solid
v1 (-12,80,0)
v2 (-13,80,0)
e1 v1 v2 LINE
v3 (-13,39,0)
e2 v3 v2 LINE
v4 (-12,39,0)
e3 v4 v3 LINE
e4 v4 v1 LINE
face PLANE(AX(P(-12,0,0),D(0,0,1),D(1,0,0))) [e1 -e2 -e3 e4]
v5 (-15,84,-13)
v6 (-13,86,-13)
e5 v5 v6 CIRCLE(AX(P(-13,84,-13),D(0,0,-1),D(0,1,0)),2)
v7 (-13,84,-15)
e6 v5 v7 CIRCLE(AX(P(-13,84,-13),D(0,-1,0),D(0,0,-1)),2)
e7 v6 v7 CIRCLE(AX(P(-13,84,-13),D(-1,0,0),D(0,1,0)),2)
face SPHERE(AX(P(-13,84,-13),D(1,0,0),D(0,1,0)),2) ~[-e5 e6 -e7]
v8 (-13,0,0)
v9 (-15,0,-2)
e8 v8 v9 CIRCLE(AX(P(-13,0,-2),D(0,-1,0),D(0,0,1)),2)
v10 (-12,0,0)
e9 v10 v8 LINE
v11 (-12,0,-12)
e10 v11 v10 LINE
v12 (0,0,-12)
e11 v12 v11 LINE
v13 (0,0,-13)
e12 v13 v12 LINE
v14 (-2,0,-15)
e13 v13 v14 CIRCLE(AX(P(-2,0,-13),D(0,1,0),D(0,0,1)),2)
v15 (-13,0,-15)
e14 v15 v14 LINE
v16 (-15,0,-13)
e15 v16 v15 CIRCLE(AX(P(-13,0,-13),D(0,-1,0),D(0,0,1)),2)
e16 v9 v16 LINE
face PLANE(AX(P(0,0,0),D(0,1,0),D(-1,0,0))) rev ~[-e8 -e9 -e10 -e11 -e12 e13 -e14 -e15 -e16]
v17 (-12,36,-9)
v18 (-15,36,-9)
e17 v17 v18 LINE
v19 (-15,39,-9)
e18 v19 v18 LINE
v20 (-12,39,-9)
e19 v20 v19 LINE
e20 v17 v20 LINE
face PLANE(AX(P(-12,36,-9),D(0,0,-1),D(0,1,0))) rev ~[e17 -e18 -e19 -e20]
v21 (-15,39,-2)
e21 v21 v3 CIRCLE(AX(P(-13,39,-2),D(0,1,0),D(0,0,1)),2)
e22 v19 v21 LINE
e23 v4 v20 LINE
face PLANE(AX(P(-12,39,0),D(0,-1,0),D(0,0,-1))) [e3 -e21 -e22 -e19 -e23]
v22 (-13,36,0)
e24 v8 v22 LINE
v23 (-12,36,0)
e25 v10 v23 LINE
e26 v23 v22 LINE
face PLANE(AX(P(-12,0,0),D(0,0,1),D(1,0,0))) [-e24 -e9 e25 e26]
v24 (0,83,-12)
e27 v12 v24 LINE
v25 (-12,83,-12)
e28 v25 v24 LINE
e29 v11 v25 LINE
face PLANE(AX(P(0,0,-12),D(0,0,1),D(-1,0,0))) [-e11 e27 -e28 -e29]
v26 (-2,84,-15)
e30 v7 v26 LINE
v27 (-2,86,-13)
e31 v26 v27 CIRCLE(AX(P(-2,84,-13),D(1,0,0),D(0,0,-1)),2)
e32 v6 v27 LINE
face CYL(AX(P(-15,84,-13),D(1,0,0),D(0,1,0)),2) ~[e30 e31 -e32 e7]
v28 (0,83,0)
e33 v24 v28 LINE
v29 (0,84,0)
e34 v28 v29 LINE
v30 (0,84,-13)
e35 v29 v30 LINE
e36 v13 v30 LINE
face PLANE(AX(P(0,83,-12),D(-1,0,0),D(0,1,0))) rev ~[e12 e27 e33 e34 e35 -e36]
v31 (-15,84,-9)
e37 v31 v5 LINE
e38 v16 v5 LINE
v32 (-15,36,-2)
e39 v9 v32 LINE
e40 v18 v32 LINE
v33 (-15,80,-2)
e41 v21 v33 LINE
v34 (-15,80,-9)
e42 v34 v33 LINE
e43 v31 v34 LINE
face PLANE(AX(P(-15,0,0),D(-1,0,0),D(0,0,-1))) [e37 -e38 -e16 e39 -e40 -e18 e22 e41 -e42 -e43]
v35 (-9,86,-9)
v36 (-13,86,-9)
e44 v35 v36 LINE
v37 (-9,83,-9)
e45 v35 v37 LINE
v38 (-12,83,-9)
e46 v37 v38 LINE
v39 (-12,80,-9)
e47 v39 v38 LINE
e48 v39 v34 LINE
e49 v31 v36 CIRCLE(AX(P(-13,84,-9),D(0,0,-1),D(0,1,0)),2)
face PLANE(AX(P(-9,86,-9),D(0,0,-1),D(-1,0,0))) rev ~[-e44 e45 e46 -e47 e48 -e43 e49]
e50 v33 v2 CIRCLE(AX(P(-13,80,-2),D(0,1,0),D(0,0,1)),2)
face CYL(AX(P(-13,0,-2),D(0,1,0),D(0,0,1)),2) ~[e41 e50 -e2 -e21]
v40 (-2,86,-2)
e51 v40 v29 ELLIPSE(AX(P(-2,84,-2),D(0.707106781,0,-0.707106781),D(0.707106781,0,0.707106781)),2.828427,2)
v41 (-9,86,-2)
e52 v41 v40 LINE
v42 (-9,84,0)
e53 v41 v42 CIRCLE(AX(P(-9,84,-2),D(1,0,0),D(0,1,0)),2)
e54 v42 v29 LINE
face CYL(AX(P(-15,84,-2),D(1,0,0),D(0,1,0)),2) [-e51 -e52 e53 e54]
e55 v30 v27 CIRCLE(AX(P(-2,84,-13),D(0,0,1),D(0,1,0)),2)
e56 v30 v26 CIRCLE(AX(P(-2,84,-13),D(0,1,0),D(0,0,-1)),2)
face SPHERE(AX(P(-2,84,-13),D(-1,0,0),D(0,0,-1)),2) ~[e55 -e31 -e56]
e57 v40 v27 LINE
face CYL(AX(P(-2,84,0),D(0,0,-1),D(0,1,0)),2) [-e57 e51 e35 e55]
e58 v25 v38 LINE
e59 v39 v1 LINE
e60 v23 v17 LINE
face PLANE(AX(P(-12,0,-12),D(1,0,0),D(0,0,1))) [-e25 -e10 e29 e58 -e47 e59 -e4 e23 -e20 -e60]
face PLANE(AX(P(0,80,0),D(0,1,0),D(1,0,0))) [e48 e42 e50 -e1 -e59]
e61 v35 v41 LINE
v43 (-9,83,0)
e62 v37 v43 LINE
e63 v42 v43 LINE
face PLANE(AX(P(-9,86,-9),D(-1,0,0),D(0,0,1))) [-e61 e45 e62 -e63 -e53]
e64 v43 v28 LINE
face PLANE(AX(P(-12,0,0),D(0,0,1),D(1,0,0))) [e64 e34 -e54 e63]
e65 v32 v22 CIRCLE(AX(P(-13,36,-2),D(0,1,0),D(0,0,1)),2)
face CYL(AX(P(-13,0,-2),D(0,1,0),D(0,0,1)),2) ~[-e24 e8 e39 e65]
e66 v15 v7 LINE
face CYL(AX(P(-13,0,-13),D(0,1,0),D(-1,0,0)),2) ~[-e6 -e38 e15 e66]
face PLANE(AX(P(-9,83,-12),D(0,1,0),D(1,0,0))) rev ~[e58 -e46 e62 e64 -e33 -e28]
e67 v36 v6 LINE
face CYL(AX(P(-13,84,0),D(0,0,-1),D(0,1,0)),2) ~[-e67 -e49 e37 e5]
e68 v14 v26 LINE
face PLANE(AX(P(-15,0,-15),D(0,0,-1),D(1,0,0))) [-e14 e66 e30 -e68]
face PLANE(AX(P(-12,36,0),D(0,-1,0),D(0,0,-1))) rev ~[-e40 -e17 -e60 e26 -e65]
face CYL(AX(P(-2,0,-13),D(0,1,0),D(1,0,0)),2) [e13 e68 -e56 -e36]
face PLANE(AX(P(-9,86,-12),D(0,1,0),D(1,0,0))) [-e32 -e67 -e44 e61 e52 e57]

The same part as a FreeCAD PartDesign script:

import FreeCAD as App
import Part
import Sketcher


def edges_at(feature, points):
    """Names of the edges that pass closest to the given points."""
    edges = feature.Shape.Edges
    near = lambda p: min(range(len(edges)), key=lambda i: edges[i].distToShape(Part.Vertex(*p))[0])
    return sorted({f"Edge{near(p) + 1}" for p in points})

doc = App.newDocument("Part")
params = doc.addObject("Spreadsheet::Sheet", "Params")
for row, (alias, value) in enumerate([
    ("sketch1_width", "3 mm"),
    ("sketch1_width2", "12 mm"),
    ("pad1_length", "86 mm"),
    ("sketch2_width", "3 mm"),
    ("sketch2_height", "12 mm"),
    ("pad2_length", "3 mm"),
    ("sketch3_width", "9 mm"),
    ("sketch3_height", "3 mm"),
    ("pad3_length", "12 mm"),
    ("fillet_radius", "2 mm"),
    ("sketch4_width", "6 mm"),
    ("sketch4_height", "9 mm"),
    ("pocket1_length", "6 mm"),
    ("sketch5_width", "3 mm"),
    ("sketch5_height", "9 mm"),
], start=1):
    params.set(f"A{row}", alias)
    params.set(f"B{row}", "=" + value)
    params.setAlias(f"B{row}", alias)

body = doc.addObject("PartDesign::Body", "Body")

# Sketch on XZ plane
sketch1 = body.newObject("Sketcher::SketchObject", "Sketch")
sketch1.AttachmentSupport = (doc.getObject("XZ_Plane"), [""])
sketch1.MapMode = "FlatFace"
sketch1.addGeometry([
    Part.LineSegment(App.Vector(-15, -15, 0), App.Vector(-15, 0, 0)),  # 0
    Part.LineSegment(App.Vector(-15, 0, 0), App.Vector(-12, 0, 0)),  # 1
    Part.LineSegment(App.Vector(-12, 0, 0), App.Vector(-12, -12, 0)),  # 2
    Part.LineSegment(App.Vector(-12, -12, 0), App.Vector(0, -12, 0)),  # 3
    Part.LineSegment(App.Vector(0, -12, 0), App.Vector(0, -15, 0)),  # 4
    Part.LineSegment(App.Vector(0, -15, 0), App.Vector(-15, -15, 0)),  # 5
], False)
sketch1.addConstraint([
    Sketcher.Constraint("Coincident", 0, 2, 1, 1),
    Sketcher.Constraint("Coincident", 1, 2, 2, 1),
    Sketcher.Constraint("Coincident", 2, 2, 3, 1),
    Sketcher.Constraint("Coincident", 3, 2, 4, 1),
    Sketcher.Constraint("Coincident", 4, 2, 5, 1),
    Sketcher.Constraint("Coincident", 5, 2, 0, 1),
    Sketcher.Constraint("Vertical", 0),
    Sketcher.Constraint("Horizontal", 1),
    Sketcher.Constraint("Vertical", 2),
    Sketcher.Constraint("Horizontal", 3),
    Sketcher.Constraint("Vertical", 4),
    Sketcher.Constraint("Horizontal", 5),
    Sketcher.Constraint("PointOnObject", 0, 2, -1),
    Sketcher.Constraint("PointOnObject", 3, 2, -2),
    Sketcher.Constraint("Equal", 5, 0),
    Sketcher.Constraint("Equal", 3, 2),
    Sketcher.Constraint("DistanceX", 1, 1, 1, 2, 3.0),
    Sketcher.Constraint("DistanceX", 3, 1, 3, 2, 12.0),
])
sketch1.setExpression("Constraints[16]", "Params.sketch1_width")
sketch1.setExpression("Constraints[17]", "Params.sketch1_width2")
pad1 = body.newObject("PartDesign::Pad", "Pad")
pad1.Profile = sketch1
pad1.setExpression("Length", "Params.pad1_length")
pad1.Reversed = True

# Sketch on YZ plane
sketch2 = body.newObject("Sketcher::SketchObject", "Sketch001")
sketch2.AttachmentSupport = (doc.getObject("YZ_Plane"), [""])
sketch2.MapMode = "FlatFace"
sketch2.AttachmentOffset = App.Placement(App.Vector(0, 0, -12), App.Rotation())
sketch2.addGeometry([
    Part.LineSegment(App.Vector(86, 0, 0), App.Vector(83, 0, 0)),
    Part.LineSegment(App.Vector(83, 0, 0), App.Vector(83, -12, 0)),
    Part.LineSegment(App.Vector(83, -12, 0), App.Vector(86, -12, 0)),
    Part.LineSegment(App.Vector(86, -12, 0), App.Vector(86, 0, 0)),
], False)
sketch2.addConstraint([
    Sketcher.Constraint("Coincident", 0, 2, 1, 1),
    Sketcher.Constraint("Coincident", 1, 2, 2, 1),
    Sketcher.Constraint("Coincident", 2, 2, 3, 1),
    Sketcher.Constraint("Coincident", 3, 2, 0, 1),
    Sketcher.Constraint("Horizontal", 0),
    Sketcher.Constraint("Vertical", 1),
    Sketcher.Constraint("Horizontal", 2),
    Sketcher.Constraint("Vertical", 3),
    Sketcher.Constraint("PointOnObject", 0, 2, -1),
    Sketcher.Constraint("DistanceX", 0, 2, 0, 1, 3.0),
    Sketcher.Constraint("DistanceY", 1, 2, 1, 1, 12.0),
    Sketcher.Constraint("DistanceX", -1, 1, 0, 2, 83.0),
])
sketch2.setExpression("Constraints[9]", "Params.sketch2_width")
sketch2.setExpression("Constraints[10]", "Params.sketch2_height")
pad2 = body.newObject("PartDesign::Pad", "Pad001")
pad2.Profile = sketch2
pad2.setExpression("Length", "Params.pad2_length")

# Sketch on XY plane
sketch3 = body.newObject("Sketcher::SketchObject", "Sketch002")
sketch3.AttachmentSupport = (doc.getObject("XY_Plane"), [""])
sketch3.MapMode = "FlatFace"
sketch3.AttachmentOffset = App.Placement(App.Vector(0, 0, -12), App.Rotation())
sketch3.addGeometry([
    Part.LineSegment(App.Vector(0, 86, 0), App.Vector(-9, 86, 0)),
    Part.LineSegment(App.Vector(-9, 86, 0), App.Vector(-9, 83, 0)),
    Part.LineSegment(App.Vector(-9, 83, 0), App.Vector(0, 83, 0)),
    Part.LineSegment(App.Vector(0, 83, 0), App.Vector(0, 86, 0)),
], False)
sketch3.addConstraint([
    Sketcher.Constraint("Coincident", 0, 2, 1, 1),
    Sketcher.Constraint("Coincident", 1, 2, 2, 1),
    Sketcher.Constraint("Coincident", 2, 2, 3, 1),
    Sketcher.Constraint("Coincident", 3, 2, 0, 1),
    Sketcher.Constraint("Horizontal", 0),
    Sketcher.Constraint("Vertical", 1),
    Sketcher.Constraint("Horizontal", 2),
    Sketcher.Constraint("Vertical", 3),
    Sketcher.Constraint("PointOnObject", 2, 2, -2),
    Sketcher.Constraint("DistanceX", 0, 2, 0, 1, 9.0),
    Sketcher.Constraint("DistanceY", 1, 2, 1, 1, 3.0),
    Sketcher.Constraint("DistanceY", -1, 1, 0, 2, 86.0),
])
sketch3.setExpression("Constraints[9]", "Params.sketch3_width")
sketch3.setExpression("Constraints[10]", "Params.sketch3_height")
pad3 = body.newObject("PartDesign::Pad", "Pad002")
pad3.Profile = sketch3
pad3.setExpression("Length", "Params.pad3_length")
doc.recompute()

fillet = body.newObject("PartDesign::Fillet", "Fillet")
fillet.Base = (pad3, edges_at(pad3, [
    (-7.5, 86, -15),
    (-15, 86, -7.5),
    (-15, 43, -15),
    (0, 43, -15),
    (-7.5, 86, 0),
    (0, 86, -7.5),
    (-15, 43, 0),
]))
fillet.setExpression("Radius", "Params.fillet_radius")

# Sketch on XZ plane
sketch4 = body.newObject("Sketcher::SketchObject", "Sketch003")
sketch4.AttachmentSupport = (doc.getObject("XZ_Plane"), [""])
sketch4.MapMode = "FlatFace"
sketch4.AttachmentOffset = App.Placement(App.Vector(0, 0, -86), App.Rotation())
sketch4.addGeometry([
    Part.LineSegment(App.Vector(-15, -9, 0), App.Vector(-15, 0, 0)),
    Part.LineSegment(App.Vector(-15, 0, 0), App.Vector(-9, 0, 0)),
    Part.LineSegment(App.Vector(-9, 0, 0), App.Vector(-9, -9, 0)),
    Part.LineSegment(App.Vector(-9, -9, 0), App.Vector(-15, -9, 0)),
], False)
sketch4.addConstraint([
    Sketcher.Constraint("Coincident", 0, 2, 1, 1),
    Sketcher.Constraint("Coincident", 1, 2, 2, 1),
    Sketcher.Constraint("Coincident", 2, 2, 3, 1),
    Sketcher.Constraint("Coincident", 3, 2, 0, 1),
    Sketcher.Constraint("Vertical", 0),
    Sketcher.Constraint("Horizontal", 1),
    Sketcher.Constraint("Vertical", 2),
    Sketcher.Constraint("Horizontal", 3),
    Sketcher.Constraint("PointOnObject", 0, 2, -1),
    Sketcher.Constraint("DistanceX", 1, 1, 1, 2, 6.0),
    Sketcher.Constraint("DistanceY", 0, 1, 0, 2, 9.0),
    Sketcher.Constraint("DistanceX", 0, 2, -1, 1, 15.0),
])
sketch4.setExpression("Constraints[9]", "Params.sketch4_width")
sketch4.setExpression("Constraints[10]", "Params.sketch4_height")
pocket1 = body.newObject("PartDesign::Pocket", "Pocket")
pocket1.Profile = sketch4
pocket1.setExpression("Length", "Params.pocket1_length")
pocket1.Reversed = True

# Sketch on YZ plane
sketch5 = body.newObject("Sketcher::SketchObject", "Sketch004")
sketch5.AttachmentSupport = (doc.getObject("YZ_Plane"), [""])
sketch5.MapMode = "FlatFace"
sketch5.AttachmentOffset = App.Placement(App.Vector(0, 0, -12), App.Rotation())
sketch5.addGeometry([
    Part.LineSegment(App.Vector(39, 0, 0), App.Vector(36, 0, 0)),
    Part.LineSegment(App.Vector(36, 0, 0), App.Vector(36, -9, 0)),
    Part.LineSegment(App.Vector(36, -9, 0), App.Vector(39, -9, 0)),
    Part.LineSegment(App.Vector(39, -9, 0), App.Vector(39, 0, 0)),
], False)
sketch5.addConstraint([
    Sketcher.Constraint("Coincident", 0, 2, 1, 1),
    Sketcher.Constraint("Coincident", 1, 2, 2, 1),
    Sketcher.Constraint("Coincident", 2, 2, 3, 1),
    Sketcher.Constraint("Coincident", 3, 2, 0, 1),
    Sketcher.Constraint("Horizontal", 0),
    Sketcher.Constraint("Vertical", 1),
    Sketcher.Constraint("Horizontal", 2),
    Sketcher.Constraint("Vertical", 3),
    Sketcher.Constraint("PointOnObject", 0, 2, -1),
    Sketcher.Constraint("DistanceX", 0, 2, 0, 1, 3.0),
    Sketcher.Constraint("DistanceY", 1, 2, 1, 1, 9.0),
    Sketcher.Constraint("DistanceX", -1, 1, 0, 2, 36.0),
])
sketch5.setExpression("Constraints[9]", "Params.sketch5_width")
sketch5.setExpression("Constraints[10]", "Params.sketch5_height")
pocket2 = body.newObject("PartDesign::Pocket", "Pocket001")
pocket2.Profile = sketch5
pocket2.Type = "ThroughAll"

doc.recompute()
